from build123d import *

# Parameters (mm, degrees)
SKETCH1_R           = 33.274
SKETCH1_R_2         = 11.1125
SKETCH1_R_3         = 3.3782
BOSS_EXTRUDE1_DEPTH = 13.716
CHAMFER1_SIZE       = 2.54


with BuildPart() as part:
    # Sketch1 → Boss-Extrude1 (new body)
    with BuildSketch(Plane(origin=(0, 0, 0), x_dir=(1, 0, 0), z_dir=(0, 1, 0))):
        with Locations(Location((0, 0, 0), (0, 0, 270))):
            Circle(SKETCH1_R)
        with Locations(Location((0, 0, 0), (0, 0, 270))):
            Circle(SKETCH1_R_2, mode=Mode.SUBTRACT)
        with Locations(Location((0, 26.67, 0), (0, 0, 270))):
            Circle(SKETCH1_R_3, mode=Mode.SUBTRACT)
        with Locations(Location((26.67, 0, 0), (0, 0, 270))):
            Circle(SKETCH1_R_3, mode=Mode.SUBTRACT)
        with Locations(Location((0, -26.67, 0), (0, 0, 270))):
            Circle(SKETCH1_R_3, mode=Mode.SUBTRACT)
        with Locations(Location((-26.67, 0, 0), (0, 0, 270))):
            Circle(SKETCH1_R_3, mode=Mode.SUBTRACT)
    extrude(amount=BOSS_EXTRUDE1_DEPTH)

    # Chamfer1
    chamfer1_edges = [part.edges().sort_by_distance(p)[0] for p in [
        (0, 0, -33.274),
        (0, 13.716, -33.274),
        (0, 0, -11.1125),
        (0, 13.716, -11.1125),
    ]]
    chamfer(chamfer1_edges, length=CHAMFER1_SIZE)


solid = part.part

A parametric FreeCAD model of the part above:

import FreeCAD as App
import Part
import Sketcher
Q = App.Units.Quantity


def edges_at(feature, points):
    """Names of the edges that pass closest to the given points."""
    edges = feature.Shape.Edges
    near = lambda p: min(range(len(edges)), key=lambda i: edges[i].distToShape(Part.Vertex(*p))[0])
    return sorted({f"Edge{near(p) + 1}" for p in points})

doc = App.newDocument("Part")
body = doc.addObject("PartDesign::Body", "Body")

# Sketch on XZ plane
sketch1 = body.newObject("Sketcher::SketchObject", "Sketch")
sketch1.AttachmentSupport = (doc.getObject("XZ_Plane"), [""])
sketch1.MapMode = "FlatFace"
sketch1.addGeometry(Part.Circle(App.Vector(0, 0, 0), App.Vector(0, 0, 1), 33.3), False)
sketch1.addGeometry(Part.Circle(App.Vector(0, -26.7, 0), App.Vector(0, 0, 1), 3.4), False)
sketch1.addGeometry(Part.Circle(App.Vector(-26.7, 0, 0), App.Vector(0, 0, 1), 3.4), False)
sketch1.addGeometry(Part.Circle(App.Vector(26.7, 0, 0), App.Vector(0, 0, 1), 3.4), False)
sketch1.addGeometry(Part.Circle(App.Vector(0, 0, 0), App.Vector(0, 0, 1), 11.1), False)
sketch1.addGeometry(Part.Circle(App.Vector(0, 26.7, 0), App.Vector(0, 0, 1), 3.4), False)
sketch1.addConstraint(Sketcher.Constraint("Coincident", 0, 3, -1, 1))
sketch1.addConstraint(Sketcher.Constraint("Coincident", 4, 3, -1, 1))
sketch1.addConstraint(Sketcher.Constraint("Equal", 1, 2))
sketch1.addConstraint(Sketcher.Constraint("Equal", 2, 3))
sketch1.addConstraint(Sketcher.Constraint("Equal", 3, 5))
sketch1.addConstraint(Sketcher.Constraint("Symmetric", 2, 3, 3, 3, -1, 1))
sketch1.addConstraint(Sketcher.Constraint("Symmetric", 1, 3, 5, 3, -1, 1))
sketch1.addConstraint(Sketcher.Constraint("PointOnObject", 1, 3, -2))
sketch1.addConstraint(Sketcher.Constraint("PointOnObject", 2, 3, -1))
sketch1.addConstraint(Sketcher.Constraint("Diameter", 0, Q("2.62 in")))
sketch1.addConstraint(Sketcher.Constraint("Diameter", 1, Q("0.266 in")))
sketch1.addConstraint(Sketcher.Constraint("Diameter", 4, Q("0.875 in")))
sketch1.addConstraint(Sketcher.Constraint("DistanceX", 2, 3, 3, 3, Q("2.1 in")))
sketch1.addConstraint(Sketcher.Constraint("DistanceY", 1, 3, 5, 3, Q("2.1 in")))
pad1 = body.newObject("PartDesign::Pad", "Pad")
pad1.Profile = sketch1
pad1.Length = Q("0.54 in")
pad1.Reversed = True
doc.recompute()

chamfer = body.newObject("PartDesign::Chamfer", "Chamfer")
chamfer.Base = (pad1, edges_at(pad1, [
    (0, 0, -33.274),
    (0, 13.716, -33.274),
    (0, 0, -11.113),
    (0, 13.716, -11.113),
]))
chamfer.Size = Q("0.1 in")

doc.recompute()
